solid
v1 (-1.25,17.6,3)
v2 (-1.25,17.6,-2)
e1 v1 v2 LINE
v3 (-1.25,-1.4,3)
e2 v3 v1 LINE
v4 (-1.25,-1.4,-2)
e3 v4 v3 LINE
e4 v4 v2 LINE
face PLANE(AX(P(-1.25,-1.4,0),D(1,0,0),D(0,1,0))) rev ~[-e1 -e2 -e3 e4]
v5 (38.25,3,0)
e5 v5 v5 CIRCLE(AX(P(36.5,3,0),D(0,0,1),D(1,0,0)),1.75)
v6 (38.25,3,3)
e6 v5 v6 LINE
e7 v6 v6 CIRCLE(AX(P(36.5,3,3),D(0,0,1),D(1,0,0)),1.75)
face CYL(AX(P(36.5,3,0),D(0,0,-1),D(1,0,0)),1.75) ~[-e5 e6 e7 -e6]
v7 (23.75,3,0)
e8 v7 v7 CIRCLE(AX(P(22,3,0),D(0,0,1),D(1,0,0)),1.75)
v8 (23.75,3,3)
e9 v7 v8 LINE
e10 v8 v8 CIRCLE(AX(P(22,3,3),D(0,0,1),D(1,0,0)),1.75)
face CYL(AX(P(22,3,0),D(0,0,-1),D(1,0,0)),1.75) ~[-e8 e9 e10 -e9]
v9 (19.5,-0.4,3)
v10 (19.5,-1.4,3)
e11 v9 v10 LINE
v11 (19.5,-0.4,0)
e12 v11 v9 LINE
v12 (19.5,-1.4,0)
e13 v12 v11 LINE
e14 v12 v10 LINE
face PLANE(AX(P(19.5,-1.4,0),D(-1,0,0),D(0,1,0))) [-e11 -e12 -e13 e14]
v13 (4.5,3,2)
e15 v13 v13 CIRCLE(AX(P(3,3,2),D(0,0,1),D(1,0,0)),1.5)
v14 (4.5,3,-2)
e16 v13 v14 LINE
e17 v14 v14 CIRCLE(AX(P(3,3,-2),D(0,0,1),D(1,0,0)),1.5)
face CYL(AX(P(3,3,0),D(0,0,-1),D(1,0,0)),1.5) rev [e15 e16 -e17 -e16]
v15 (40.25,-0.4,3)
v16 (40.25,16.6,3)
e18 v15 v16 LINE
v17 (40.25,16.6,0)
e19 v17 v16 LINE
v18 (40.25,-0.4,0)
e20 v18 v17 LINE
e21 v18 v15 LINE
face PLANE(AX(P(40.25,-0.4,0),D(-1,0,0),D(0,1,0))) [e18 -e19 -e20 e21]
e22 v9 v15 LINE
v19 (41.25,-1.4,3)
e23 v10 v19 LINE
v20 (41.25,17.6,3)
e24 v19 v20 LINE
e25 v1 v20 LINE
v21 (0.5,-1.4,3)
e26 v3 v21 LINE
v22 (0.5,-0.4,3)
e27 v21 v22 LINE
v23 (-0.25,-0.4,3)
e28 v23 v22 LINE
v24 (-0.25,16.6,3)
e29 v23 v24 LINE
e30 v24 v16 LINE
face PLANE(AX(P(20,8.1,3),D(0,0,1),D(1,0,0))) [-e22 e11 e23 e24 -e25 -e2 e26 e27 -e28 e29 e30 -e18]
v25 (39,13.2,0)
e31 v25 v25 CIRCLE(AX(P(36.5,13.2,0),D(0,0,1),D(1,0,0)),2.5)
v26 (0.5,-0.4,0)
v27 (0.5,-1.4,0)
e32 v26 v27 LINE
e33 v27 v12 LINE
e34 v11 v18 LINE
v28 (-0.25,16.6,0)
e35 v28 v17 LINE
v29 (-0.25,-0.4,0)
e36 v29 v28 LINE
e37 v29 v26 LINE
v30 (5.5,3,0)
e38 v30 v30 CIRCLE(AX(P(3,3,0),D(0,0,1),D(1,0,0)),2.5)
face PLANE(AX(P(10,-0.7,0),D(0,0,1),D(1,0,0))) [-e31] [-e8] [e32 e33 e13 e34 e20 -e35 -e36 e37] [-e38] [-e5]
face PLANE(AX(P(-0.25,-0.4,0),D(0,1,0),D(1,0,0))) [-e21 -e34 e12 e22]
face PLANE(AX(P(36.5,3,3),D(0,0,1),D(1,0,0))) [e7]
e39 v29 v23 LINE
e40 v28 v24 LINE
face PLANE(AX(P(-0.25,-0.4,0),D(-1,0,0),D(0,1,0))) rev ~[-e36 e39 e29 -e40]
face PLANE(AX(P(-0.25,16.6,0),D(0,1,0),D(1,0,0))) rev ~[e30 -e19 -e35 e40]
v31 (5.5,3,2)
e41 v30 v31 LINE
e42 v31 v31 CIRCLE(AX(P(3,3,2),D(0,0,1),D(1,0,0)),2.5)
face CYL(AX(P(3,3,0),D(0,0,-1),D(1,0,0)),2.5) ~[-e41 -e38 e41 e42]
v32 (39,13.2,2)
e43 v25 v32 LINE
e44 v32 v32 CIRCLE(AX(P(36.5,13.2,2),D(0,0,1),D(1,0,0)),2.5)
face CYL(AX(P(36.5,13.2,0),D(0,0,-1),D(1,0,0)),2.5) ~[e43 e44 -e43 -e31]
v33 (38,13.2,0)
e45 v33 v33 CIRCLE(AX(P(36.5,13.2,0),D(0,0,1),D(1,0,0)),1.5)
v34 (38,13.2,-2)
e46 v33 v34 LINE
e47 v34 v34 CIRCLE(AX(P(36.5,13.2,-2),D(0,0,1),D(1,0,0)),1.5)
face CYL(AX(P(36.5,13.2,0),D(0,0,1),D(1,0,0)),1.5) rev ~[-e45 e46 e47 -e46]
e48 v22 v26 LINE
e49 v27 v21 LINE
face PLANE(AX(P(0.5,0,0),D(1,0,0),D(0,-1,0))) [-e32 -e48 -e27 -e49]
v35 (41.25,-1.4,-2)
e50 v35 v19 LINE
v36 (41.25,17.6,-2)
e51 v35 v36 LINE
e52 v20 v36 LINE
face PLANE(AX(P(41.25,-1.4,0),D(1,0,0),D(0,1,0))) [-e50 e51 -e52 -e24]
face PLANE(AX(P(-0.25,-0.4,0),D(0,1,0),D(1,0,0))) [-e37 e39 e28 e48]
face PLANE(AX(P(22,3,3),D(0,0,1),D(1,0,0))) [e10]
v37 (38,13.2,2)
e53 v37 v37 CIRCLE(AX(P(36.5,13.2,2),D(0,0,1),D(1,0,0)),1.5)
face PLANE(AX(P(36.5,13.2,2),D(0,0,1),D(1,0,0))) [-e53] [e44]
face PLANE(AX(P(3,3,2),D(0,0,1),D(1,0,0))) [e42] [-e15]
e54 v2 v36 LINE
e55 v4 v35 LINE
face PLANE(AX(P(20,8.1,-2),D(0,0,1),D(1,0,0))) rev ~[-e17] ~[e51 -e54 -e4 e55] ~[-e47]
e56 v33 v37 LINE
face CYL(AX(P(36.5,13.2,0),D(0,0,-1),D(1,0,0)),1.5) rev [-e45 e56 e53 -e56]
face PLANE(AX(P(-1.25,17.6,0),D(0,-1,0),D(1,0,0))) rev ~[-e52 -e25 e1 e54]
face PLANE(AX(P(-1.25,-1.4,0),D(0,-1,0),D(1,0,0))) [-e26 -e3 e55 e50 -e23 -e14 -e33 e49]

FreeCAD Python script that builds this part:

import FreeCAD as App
import Part
import Sketcher
Q = App.Units.Quantity

doc = App.newDocument("Part")
body = doc.addObject("PartDesign::Body", "Body")

# Sketch on XY plane
sketch1 = doc.addObject("Sketcher::SketchObject", "Sketch")
body.addObject(sketch1)
sketch1.AttachmentSupport = (doc.XY_Plane, [""])
sketch1.MapMode = "FlatFace"
sketch1.addGeometry([
    Part.LineSegment(App.Vector(-1, 18, 0), App.Vector(-1, -1, 0)),  # 0
    Part.LineSegment(App.Vector(-1, -1, 0), App.Vector(41, -1, 0)),  # 1
    Part.LineSegment(App.Vector(41, -1, 0), App.Vector(41, 18, 0)),  # 2
    Part.LineSegment(App.Vector(41, 18, 0), App.Vector(-1, 18, 0)),  # 3
    Part.LineSegment(App.Vector(40, 0, 0), App.Vector(0, 0, 0)),  # 4
    Part.LineSegment(App.Vector(0, 0, 0), App.Vector(0, 17, 0)),  # 5
    Part.LineSegment(App.Vector(0, 17, 0), App.Vector(40, 17, 0)),  # 6
    Part.LineSegment(App.Vector(40, 17, 0), App.Vector(40, 0, 0)),  # 7
], False)
sketch1.addConstraint([
    Sketcher.Constraint("Coincident", 0, 2, 1, 1),
    Sketcher.Constraint("Coincident", 1, 2, 2, 1),
    Sketcher.Constraint("Coincident", 2, 2, 3, 1),
    Sketcher.Constraint("Coincident", 3, 2, 0, 1),
    Sketcher.Constraint("Coincident", 4, 2, 5, 1),
    Sketcher.Constraint("Coincident", 5, 2, 6, 1),
    Sketcher.Constraint("Coincident", 6, 2, 7, 1),
    Sketcher.Constraint("Coincident", 7, 2, 4, 1),
    Sketcher.Constraint("Vertical", 0),
    Sketcher.Constraint("Horizontal", 1),
    Sketcher.Constraint("Vertical", 2),
    Sketcher.Constraint("Horizontal", 3),
    Sketcher.Constraint("Horizontal", 4),
    Sketcher.Constraint("Vertical", 5),
    Sketcher.Constraint("Horizontal", 6),
    Sketcher.Constraint("Vertical", 7),
    Sketcher.Constraint("DistanceY", 0, 2, 0, 1, Q("19 mm")),
    Sketcher.Constraint("DistanceY", 5, 1, 5, 2, Q("17 mm")),
    Sketcher.Constraint("DistanceX", 1, 1, 1, 2, Q("42.5 mm")),
    Sketcher.Constraint("DistanceX", 4, 2, 4, 1, Q("40.5 mm")),
    Sketcher.Constraint("DistanceX", 0, 2, 4, 2, Q("1 mm")),
    Sketcher.Constraint("DistanceY", 0, 2, 4, 2, Q("1 mm")),
    Sketcher.Constraint("DistanceY", 0, 2, -1, 1, Q("1.4 mm")),
    Sketcher.Constraint("DistanceX", 0, 2, -1, 1, Q("1.25 mm")),
])
pad1 = doc.addObject("PartDesign::Pad", "Pad")
body.addObject(pad1)
pad1.Profile = sketch1
pad1.Length = 3

# Sketch on XY plane
sketch2 = doc.addObject("Sketcher::SketchObject", "Sketch001")
body.addObject(sketch2)
sketch2.AttachmentSupport = (doc.XY_Plane, [""])
sketch2.MapMode = "FlatFace"
sketch2.addGeometry([
    Part.LineSegment(App.Vector(-1.2, 17.6, 0), App.Vector(-1.2, -1.4, 0)),  # 0
    Part.LineSegment(App.Vector(-1.2, -1.4, 0), App.Vector(41.2, -1.4, 0)),  # 1
    Part.LineSegment(App.Vector(41.2, -1.4, 0), App.Vector(41.2, 17.6, 0)),  # 2
    Part.LineSegment(App.Vector(41.2, 17.6, 0), App.Vector(-1.2, 17.6, 0)),  # 3
    Part.Circle(App.Vector(3, 3, 0), App.Vector(0, 0, 1), 1.5),  # 4
    Part.Circle(App.Vector(36.5, 13.2, 0), App.Vector(0, 0, 1), 1.5),  # 5
], False)
sketch2.addConstraint([
    Sketcher.Constraint("Coincident", 0, 2, 1, 1),
    Sketcher.Constraint("Coincident", 1, 2, 2, 1),
    Sketcher.Constraint("Coincident", 2, 2, 3, 1),
    Sketcher.Constraint("Coincident", 3, 2, 0, 1),
    Sketcher.Constraint("Vertical", 0),
    Sketcher.Constraint("Horizontal", 1),
    Sketcher.Constraint("Vertical", 2),
    Sketcher.Constraint("Horizontal", 3),
    Sketcher.Constraint("Equal", 4, 5),
    Sketcher.Constraint("Diameter", 4, Q("3 mm")),
    Sketcher.Constraint("DistanceY", 0, 2, 0, 1, Q("19 mm")),
    Sketcher.Constraint("DistanceX", 1, 1, 1, 2, Q("42.5 mm")),
    Sketcher.Constraint("DistanceX", -1, 1, 4, 3, Q("3 mm")),
    Sketcher.Constraint("DistanceY", -1, 1, 4, 3, Q("3 mm")),
    Sketcher.Constraint("DistanceX", -1, 1, 5, 3, Q("36.5 mm")),
    Sketcher.Constraint("DistanceY", -1, 1, 5, 3, Q("13.2 mm")),
    Sketcher.Constraint("DistanceY", 0, 2, -1, 1, Q("1.4 mm")),
    Sketcher.Constraint("DistanceX", 0, 2, -1, 1, Q("1.25 mm")),
])
pad2 = doc.addObject("PartDesign::Pad", "Pad001")
body.addObject(pad2)
pad2.Profile = sketch2
pad2.Length = 2
pad2.Reversed = True

# Sketch on XY plane
sketch3 = doc.addObject("Sketcher::SketchObject", "Sketch002")
body.addObject(sketch3)
sketch3.AttachmentSupport = (doc.XY_Plane, [""])
sketch3.MapMode = "FlatFace"
sketch3.addGeometry([
    Part.Circle(App.Vector(22, 3, 0), App.Vector(0, 0, 1), 1.8),
    Part.Circle(App.Vector(36.5, 3, 0), App.Vector(0, 0, 1), 1.8),
], False)
sketch3.addConstraint([
    Sketcher.Constraint("Equal", 0, 1),
    Sketcher.Constraint("Horizontal", 0, 3, 1, 3),
    Sketcher.Constraint("Diameter", 0, Q("3.5 mm")),
    Sketcher.Constraint("DistanceX", -1, 1, 0, 3, Q("22 mm")),
    Sketcher.Constraint("DistanceY", -1, 1, 0, 3, Q("3 mm")),
    Sketcher.Constraint("DistanceX", -1, 1, 1, 3, Q("36.5 mm")),
])
pad3 = doc.addObject("PartDesign::Pad", "Pad002")
body.addObject(pad3)
pad3.Profile = sketch3
pad3.Length = 3

# Sketch on XY plane
sketch4 = doc.addObject("Sketcher::SketchObject", "Sketch003")
body.addObject(sketch4)
sketch4.AttachmentSupport = (doc.XY_Plane, [""])
sketch4.MapMode = "FlatFace"
sketch4.addGeometry([
    Part.LineSegment(App.Vector(19.5, 0, 0), App.Vector(0.5, 0, 0)),
    Part.LineSegment(App.Vector(0.5, 0, 0), App.Vector(0.5, -1.4, 0)),
    Part.LineSegment(App.Vector(0.5, -1.4, 0), App.Vector(19.5, -1.4, 0)),
    Part.LineSegment(App.Vector(19.5, -1.4, 0), App.Vector(19.5, 0, 0)),
], False)
sketch4.addConstraint([
    Sketcher.Constraint("Coincident", 0, 2, 1, 1),
    Sketcher.Constraint("Coincident", 1, 2, 2, 1),
    Sketcher.Constraint("Coincident", 2, 2, 3, 1),
    Sketcher.Constraint("Coincident", 3, 2, 0, 1),
    Sketcher.Constraint("Horizontal", 0),
    Sketcher.Constraint("Vertical", 1),
    Sketcher.Constraint("Horizontal", 2),
    Sketcher.Constraint("Vertical", 3),
    Sketcher.Constraint("PointOnObject", 0, 2, -1),
    Sketcher.Constraint("DistanceX", 0, 2, 0, 1, Q("19 mm")),
    Sketcher.Constraint("DistanceY", 1, 2, 1, 1, Q("1.4 mm")),
    Sketcher.Constraint("DistanceX", -1, 1, 0, 2, Q("0.5 mm")),
])
pocket1 = doc.addObject("PartDesign::Pocket", "Pocket")
body.addObject(pocket1)
pocket1.Profile = sketch4
pocket1.Type = "ThroughAll"
pocket1.Reversed = True

# Sketch on XY plane
sketch5 = doc.addObject("Sketcher::SketchObject", "Sketch004")
body.addObject(sketch5)
sketch5.AttachmentSupport = (doc.XY_Plane, [""])
sketch5.MapMode = "FlatFace"
sketch5.addGeometry([
    Part.Circle(App.Vector(3, 3, 0), App.Vector(0, 0, 1), 2.5),
    Part.Circle(App.Vector(3, 3, 0), App.Vector(0, 0, 1), 1.5),
    Part.Circle(App.Vector(36.5, 13.2, 0), App.Vector(0, 0, 1), 2.5),
    Part.Circle(App.Vector(36.5, 13.2, 0), App.Vector(0, 0, 1), 1.5),
], False)
sketch5.addConstraint([
    Sketcher.Constraint("Coincident", 1, 3, 0, 3),
    Sketcher.Constraint("Coincident", 3, 3, 2, 3),
    Sketcher.Constraint("Equal", 0, 2),
    Sketcher.Constraint("Equal", 1, 3),
    Sketcher.Constraint("Diameter", 0, Q("5 mm")),
    Sketcher.Constraint("Diameter", 1, Q("3 mm")),
    Sketcher.Constraint("DistanceX", -1, 1, 0, 3, Q("3 mm")),
    Sketcher.Constraint("DistanceY", -1, 1, 0, 3, Q("3 mm")),
    Sketcher.Constraint("DistanceX", -1, 1, 2, 3, Q("36.5 mm")),
    Sketcher.Constraint("DistanceY", -1, 1, 2, 3, Q("13.2 mm")),
])
pad4 = doc.addObject("PartDesign::Pad", "Pad003")
body.addObject(pad4)
pad4.Profile = sketch5
pad4.Length = 2

doc.recompute()
